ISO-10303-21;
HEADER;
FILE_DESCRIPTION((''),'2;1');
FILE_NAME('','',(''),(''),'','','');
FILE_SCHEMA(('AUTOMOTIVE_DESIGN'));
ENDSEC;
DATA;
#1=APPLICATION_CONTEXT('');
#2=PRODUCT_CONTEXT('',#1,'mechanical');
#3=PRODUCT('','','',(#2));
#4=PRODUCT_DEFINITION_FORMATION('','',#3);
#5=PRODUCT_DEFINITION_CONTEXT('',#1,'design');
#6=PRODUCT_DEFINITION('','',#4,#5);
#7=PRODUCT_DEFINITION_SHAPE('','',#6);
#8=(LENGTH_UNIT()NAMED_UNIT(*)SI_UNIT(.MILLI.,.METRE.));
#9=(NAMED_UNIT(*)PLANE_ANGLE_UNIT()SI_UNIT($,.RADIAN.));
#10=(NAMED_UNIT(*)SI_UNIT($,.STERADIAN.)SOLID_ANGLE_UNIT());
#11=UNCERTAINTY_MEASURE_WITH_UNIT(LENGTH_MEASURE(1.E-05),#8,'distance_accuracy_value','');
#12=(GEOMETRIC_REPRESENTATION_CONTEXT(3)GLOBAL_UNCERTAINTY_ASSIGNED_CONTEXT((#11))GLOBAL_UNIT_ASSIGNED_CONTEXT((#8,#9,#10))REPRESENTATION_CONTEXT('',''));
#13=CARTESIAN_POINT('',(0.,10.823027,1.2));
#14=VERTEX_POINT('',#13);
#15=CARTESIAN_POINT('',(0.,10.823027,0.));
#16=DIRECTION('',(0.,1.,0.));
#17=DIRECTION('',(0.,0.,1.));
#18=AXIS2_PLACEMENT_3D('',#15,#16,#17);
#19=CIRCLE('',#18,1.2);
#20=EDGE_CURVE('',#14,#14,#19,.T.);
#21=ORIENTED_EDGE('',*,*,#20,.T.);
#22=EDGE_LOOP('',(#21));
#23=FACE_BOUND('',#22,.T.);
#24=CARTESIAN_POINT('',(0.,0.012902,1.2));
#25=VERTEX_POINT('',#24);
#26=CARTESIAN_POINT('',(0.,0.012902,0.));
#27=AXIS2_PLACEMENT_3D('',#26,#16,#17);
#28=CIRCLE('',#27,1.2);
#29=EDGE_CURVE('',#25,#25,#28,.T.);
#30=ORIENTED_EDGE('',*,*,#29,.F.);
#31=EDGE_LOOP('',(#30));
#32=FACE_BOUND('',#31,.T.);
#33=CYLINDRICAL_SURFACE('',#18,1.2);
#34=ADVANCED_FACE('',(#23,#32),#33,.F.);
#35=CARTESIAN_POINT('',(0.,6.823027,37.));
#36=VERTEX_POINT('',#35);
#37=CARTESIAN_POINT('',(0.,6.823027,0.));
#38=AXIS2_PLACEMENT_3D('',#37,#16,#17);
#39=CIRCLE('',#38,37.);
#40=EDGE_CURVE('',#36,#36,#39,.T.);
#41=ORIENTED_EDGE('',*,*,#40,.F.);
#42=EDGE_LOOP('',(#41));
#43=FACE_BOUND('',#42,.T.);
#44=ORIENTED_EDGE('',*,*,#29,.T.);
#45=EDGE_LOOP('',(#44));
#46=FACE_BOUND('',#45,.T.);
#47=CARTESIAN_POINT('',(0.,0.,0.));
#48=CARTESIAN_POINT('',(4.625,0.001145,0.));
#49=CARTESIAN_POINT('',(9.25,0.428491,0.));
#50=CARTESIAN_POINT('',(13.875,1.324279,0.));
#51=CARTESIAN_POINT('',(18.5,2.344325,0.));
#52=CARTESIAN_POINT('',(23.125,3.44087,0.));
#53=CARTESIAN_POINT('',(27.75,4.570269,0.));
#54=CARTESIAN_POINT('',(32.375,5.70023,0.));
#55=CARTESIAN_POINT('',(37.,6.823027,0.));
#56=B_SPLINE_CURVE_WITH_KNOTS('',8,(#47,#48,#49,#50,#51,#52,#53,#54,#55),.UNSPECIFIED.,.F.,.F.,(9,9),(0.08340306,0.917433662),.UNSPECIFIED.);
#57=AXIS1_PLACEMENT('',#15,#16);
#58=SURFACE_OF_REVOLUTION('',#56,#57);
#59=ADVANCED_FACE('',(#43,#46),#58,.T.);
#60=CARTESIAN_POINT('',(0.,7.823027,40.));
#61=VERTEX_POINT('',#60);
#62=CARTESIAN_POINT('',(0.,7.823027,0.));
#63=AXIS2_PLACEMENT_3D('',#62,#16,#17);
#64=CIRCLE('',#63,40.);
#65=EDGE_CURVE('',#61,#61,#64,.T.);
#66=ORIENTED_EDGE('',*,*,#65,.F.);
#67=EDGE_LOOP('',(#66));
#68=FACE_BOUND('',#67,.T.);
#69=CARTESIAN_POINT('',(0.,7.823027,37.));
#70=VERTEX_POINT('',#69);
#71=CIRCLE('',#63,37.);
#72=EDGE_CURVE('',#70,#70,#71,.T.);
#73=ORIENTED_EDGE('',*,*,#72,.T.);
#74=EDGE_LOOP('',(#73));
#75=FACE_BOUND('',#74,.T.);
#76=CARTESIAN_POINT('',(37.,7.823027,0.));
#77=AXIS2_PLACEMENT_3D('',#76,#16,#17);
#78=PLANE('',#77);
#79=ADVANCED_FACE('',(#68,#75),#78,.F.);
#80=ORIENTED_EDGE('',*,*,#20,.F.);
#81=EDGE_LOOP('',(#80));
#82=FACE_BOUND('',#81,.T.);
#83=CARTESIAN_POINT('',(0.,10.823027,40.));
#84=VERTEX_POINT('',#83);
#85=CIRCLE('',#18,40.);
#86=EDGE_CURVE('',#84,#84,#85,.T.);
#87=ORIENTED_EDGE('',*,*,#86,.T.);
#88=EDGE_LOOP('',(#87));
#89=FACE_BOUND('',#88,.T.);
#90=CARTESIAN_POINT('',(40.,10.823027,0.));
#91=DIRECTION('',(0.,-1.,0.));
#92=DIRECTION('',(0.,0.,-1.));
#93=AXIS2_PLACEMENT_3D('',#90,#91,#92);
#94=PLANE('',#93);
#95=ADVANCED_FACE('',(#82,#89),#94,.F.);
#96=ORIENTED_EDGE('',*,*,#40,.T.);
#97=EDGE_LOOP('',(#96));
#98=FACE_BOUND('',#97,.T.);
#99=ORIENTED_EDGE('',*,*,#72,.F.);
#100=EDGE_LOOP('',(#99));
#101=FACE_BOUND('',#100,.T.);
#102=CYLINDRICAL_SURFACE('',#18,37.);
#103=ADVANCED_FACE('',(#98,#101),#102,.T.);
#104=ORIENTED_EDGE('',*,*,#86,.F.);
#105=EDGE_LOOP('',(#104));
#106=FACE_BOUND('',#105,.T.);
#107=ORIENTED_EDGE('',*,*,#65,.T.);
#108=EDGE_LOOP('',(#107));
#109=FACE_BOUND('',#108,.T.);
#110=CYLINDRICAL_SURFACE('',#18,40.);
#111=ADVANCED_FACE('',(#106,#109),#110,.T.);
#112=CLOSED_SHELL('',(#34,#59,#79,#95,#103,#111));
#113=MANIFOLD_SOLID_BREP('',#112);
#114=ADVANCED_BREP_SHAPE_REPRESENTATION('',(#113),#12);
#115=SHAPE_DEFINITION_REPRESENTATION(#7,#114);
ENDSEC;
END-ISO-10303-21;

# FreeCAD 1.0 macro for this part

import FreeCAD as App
import Part
import Sketcher
Q = App.Units.Quantity

doc = App.newDocument("Part")
body = doc.addObject("PartDesign::Body", "Body")

# Sketch on XY plane
sketch1 = body.newObject("Sketcher::SketchObject", "Sketch")
sketch1.AttachmentSupport = (doc.getObject("XY_Plane"), [""])
sketch1.MapMode = "FlatFace"
sketch1.addGeometry([
    Part.LineSegment(App.Vector(1.2, 10.823027, 0), App.Vector(1.2, 5.823027, 0)),  # 0
    Part.LineSegment(App.Vector(1.2, 5.823027, 0), App.Vector(0, 5.823027, 0)),  # 1
    Part.LineSegment(App.Vector(0, 5.823027, 0), App.Vector(0, 0, 0)),  # 2
    Part.BSplineCurve([App.Vector(0, 0, 0), App.Vector(4.625, 0.001145, 0), App.Vector(9.25, 0.428491, 0), App.Vector(13.875, 1.324279, 0), App.Vector(18.5, 2.344325, 0), App.Vector(23.125, 3.44087, 0), App.Vector(27.75, 4.570269, 0), App.Vector(32.375, 5.70023, 0), App.Vector(37, 6.823027, 0)], [9, 9], [0.08340306, 0.917433662], False, 8, [1, 1, 1, 1, 1, 1, 1, 1, 1], False),  # 3
    Part.LineSegment(App.Vector(37, 6.823027, 0), App.Vector(37, 7.823027, 0)),  # 4
    Part.LineSegment(App.Vector(37, 7.823027, 0), App.Vector(40, 7.823027, 0)),  # 5
    Part.LineSegment(App.Vector(40, 7.823027, 0), App.Vector(40, 10.823027, 0)),  # 6
    Part.LineSegment(App.Vector(40, 10.823027, 0), App.Vector(1.2, 10.823027, 0)),  # 7
], False)
sketch1.addConstraint([
    Sketcher.Constraint("Block", 3),
    Sketcher.Constraint("Coincident", 0, 2, 1, 1),
    Sketcher.Constraint("Coincident", 1, 2, 2, 1),
    Sketcher.Constraint("Coincident", 2, 2, 3, 1),
    Sketcher.Constraint("Coincident", 3, 2, 4, 1),
    Sketcher.Constraint("Coincident", 4, 2, 5, 1),
    Sketcher.Constraint("Coincident", 5, 2, 6, 1),
    Sketcher.Constraint("Coincident", 6, 2, 7, 1),
    Sketcher.Constraint("Coincident", 7, 2, 0, 1),
    Sketcher.Constraint("Vertical", 0),
    Sketcher.Constraint("Horizontal", 1),
    Sketcher.Constraint("Vertical", 2),
    Sketcher.Constraint("Vertical", 4),
    Sketcher.Constraint("Horizontal", 5),
    Sketcher.Constraint("Vertical", 6),
    Sketcher.Constraint("Horizontal", 7),
    Sketcher.Constraint("Equal", 5, 6),
    Sketcher.Constraint("DistanceX", 5, 1, 5, 2, Q("3 mm")),
    Sketcher.Constraint("DistanceY", 0, 2, 0, 1, Q("5 mm")),
    Sketcher.Constraint("DistanceY", 4, 1, 4, 2, Q("1 mm")),
    Sketcher.Constraint("DistanceX", 1, 2, 1, 1, Q("1.2 mm")),
])
revolution = body.newObject("PartDesign::Revolution", "Revolution")
revolution.Profile = sketch1
revolution.ReferenceAxis = (sketch1, ["V_Axis"])
revolution.Angle = 360

# Sketch on XZ plane
sketch2 = body.newObject("Sketcher::SketchObject", "Sketch001")
sketch2.AttachmentSupport = (doc.getObject("XZ_Plane"), [""])
sketch2.MapMode = "FlatFace"
sketch2.AttachmentOffset = App.Placement(App.Vector(0, 0, -10.823027), App.Rotation())
sketch2.addGeometry(Part.Circle(App.Vector(0, 0, 0), App.Vector(0, 0, 1), 1.2), False)
sketch2.addConstraint([
    Sketcher.Constraint("Coincident", 0, 3, -1, 1),
    Sketcher.Constraint("Diameter", 0, Q("2.4 mm")),
])
pocket1 = body.newObject("PartDesign::Pocket", "Pocket")
pocket1.Profile = sketch2
pocket1.Type = "ThroughAll"
pocket1.Reversed = True

doc.recompute()
